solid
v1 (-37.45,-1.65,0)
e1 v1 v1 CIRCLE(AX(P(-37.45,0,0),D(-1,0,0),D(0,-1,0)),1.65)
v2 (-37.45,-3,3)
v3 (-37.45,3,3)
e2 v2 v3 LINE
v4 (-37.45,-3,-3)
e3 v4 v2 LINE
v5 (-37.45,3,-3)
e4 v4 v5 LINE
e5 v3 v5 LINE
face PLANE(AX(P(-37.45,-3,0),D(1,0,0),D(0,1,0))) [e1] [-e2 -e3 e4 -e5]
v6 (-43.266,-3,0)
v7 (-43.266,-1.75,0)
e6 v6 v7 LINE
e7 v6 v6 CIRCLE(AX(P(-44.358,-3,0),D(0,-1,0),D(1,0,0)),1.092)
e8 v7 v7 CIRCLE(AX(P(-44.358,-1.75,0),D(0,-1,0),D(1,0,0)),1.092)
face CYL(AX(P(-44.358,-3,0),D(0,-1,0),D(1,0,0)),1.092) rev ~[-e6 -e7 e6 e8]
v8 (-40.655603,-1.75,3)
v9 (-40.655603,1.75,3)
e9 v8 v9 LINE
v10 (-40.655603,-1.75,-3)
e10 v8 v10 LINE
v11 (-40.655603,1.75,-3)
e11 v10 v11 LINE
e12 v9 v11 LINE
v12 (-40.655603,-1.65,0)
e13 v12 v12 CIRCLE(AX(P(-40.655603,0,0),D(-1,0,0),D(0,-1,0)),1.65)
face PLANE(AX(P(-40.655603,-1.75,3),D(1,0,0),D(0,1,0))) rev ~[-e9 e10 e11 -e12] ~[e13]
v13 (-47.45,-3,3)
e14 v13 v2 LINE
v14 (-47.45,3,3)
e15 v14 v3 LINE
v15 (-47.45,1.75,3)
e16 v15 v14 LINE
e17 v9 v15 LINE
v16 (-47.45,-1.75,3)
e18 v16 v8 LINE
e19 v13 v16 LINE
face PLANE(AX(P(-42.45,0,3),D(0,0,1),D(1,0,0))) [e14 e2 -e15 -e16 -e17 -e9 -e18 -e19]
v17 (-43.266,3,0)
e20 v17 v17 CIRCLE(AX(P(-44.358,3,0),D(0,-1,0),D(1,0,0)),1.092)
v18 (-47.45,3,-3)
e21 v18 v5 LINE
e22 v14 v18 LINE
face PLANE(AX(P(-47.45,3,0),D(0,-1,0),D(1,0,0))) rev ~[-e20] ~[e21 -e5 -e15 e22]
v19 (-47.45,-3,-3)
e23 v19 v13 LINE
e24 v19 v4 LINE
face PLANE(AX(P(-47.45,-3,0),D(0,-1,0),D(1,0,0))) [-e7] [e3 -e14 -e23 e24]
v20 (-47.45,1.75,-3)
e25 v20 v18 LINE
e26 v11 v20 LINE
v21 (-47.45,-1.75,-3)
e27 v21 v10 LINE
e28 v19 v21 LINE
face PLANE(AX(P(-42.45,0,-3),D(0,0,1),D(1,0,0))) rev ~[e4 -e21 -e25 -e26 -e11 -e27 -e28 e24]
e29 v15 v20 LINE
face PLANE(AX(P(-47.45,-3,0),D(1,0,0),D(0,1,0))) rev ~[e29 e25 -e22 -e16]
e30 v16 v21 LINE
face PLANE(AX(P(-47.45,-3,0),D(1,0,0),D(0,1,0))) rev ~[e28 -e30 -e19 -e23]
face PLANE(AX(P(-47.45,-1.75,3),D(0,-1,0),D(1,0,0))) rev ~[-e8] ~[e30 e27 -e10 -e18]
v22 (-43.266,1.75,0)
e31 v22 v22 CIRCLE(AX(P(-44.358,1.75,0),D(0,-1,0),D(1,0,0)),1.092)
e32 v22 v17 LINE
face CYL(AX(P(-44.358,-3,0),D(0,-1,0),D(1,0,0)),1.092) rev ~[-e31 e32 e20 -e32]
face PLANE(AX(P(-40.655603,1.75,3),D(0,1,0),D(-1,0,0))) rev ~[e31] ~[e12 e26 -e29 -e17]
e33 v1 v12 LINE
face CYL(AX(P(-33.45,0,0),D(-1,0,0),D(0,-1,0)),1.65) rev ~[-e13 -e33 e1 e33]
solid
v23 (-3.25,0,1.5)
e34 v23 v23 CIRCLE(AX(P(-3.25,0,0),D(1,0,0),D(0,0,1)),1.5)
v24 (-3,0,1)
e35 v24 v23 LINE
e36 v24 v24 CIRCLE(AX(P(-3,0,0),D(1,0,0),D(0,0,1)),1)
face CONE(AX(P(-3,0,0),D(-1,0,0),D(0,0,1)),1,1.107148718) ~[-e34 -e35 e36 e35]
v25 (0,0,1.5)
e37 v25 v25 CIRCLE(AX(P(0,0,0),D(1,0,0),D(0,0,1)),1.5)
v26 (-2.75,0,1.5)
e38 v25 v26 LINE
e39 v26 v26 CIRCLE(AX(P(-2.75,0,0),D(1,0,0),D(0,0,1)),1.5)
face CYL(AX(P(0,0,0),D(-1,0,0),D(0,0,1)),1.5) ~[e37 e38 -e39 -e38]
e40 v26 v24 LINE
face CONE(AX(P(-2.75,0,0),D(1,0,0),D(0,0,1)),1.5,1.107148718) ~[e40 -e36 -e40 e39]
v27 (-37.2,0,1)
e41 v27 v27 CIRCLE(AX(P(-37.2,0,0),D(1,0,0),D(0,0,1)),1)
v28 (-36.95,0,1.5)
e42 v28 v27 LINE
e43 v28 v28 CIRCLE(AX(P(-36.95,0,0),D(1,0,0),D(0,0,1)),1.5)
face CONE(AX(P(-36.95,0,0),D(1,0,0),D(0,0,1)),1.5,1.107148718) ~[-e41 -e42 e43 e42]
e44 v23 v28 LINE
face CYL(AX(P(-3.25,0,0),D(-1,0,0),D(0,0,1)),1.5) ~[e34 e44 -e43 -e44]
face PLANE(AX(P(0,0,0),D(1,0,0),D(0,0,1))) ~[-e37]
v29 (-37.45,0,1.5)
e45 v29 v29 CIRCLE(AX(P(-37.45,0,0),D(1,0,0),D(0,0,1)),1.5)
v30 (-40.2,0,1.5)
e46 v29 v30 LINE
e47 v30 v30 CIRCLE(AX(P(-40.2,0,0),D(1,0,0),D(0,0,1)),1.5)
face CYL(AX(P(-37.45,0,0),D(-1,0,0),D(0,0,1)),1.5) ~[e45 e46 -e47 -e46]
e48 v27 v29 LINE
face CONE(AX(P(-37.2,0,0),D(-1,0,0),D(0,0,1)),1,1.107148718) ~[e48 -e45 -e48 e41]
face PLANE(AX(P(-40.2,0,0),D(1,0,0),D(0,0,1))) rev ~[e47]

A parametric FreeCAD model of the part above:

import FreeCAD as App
import Part
import Sketcher


def add_polygon(sketch, points):
    """Adds a closed chain of lines whose ends are joined by coincident constraints."""
    first, n = sketch.GeometryCount, len(points)
    for a, b in zip(points, points[1:] + points[:1]):
        sketch.addGeometry(Part.LineSegment(App.Vector(*a, 0), App.Vector(*b, 0)), False)
    for i in range(n):
        sketch.addConstraint(Sketcher.Constraint("Coincident", first + i, 2, first + (i + 1) % n, 1))

doc = App.newDocument("Part")
params = doc.addObject("Spreadsheet::Sheet", "Params")
for row, (alias, value) in enumerate([
    ("sketch1_width", "40.2 mm"),
    ("sketch1_width2", "33.7 mm"),
    ("sketch1_height", "1.5 mm"),
    ("revolution_angle", "360 deg"),
    ("sketch2_width", "10 mm"),
    ("sketch2_height", "6 mm"),
    ("pad1_length", "6 mm"),
    ("sketch3_diameter", "3.3 mm"),
    ("hole_diameter", "3.3 mm"),
    ("hole_depth", "4 mm"),
    ("sketch5_height", "3.5 mm"),
], start=1):
    params.set(f"A{row}", alias)
    params.set(f"B{row}", "=" + value)
    params.setAlias(f"B{row}", alias)

body = doc.addObject("PartDesign::Body", "Body")

# Sketch on XZ plane
sketch1 = body.newObject("Sketcher::SketchObject", "Sketch")
sketch1.AttachmentSupport = (doc.getObject("XZ_Plane"), [""])
sketch1.MapMode = "FlatFace"
add_polygon(sketch1, [(-37.5, 1.5), (-40.2, 1.5), (-40.2, 0), (0, 0), (0, 1.5), (-2.8, 1.5), (-3, 1), (-3.2, 1.5), (-37, 1.5), (-37.2, 1)])  # lines 0-9
sketch1.addConstraint(Sketcher.Constraint("Horizontal", 0))
sketch1.addConstraint(Sketcher.Constraint("Vertical", 1))
sketch1.addConstraint(Sketcher.Constraint("Horizontal", 2))
sketch1.addConstraint(Sketcher.Constraint("Vertical", 3))
sketch1.addConstraint(Sketcher.Constraint("Horizontal", 4))
sketch1.addConstraint(Sketcher.Constraint("Horizontal", 7))
sketch1.addConstraint(Sketcher.Constraint("Coincident", 2, 2, -1, 1))
sketch1.addConstraint(Sketcher.Constraint("Parallel", 5, 8))
sketch1.addConstraint(Sketcher.Constraint("Parallel", 6, 9))
sketch1.addConstraint(Sketcher.Constraint("Horizontal", 0, 2, 3, 2))
sketch1.addConstraint(Sketcher.Constraint("Horizontal", 4, 2, 6, 2))
sketch1.addConstraint(Sketcher.Constraint("Horizontal", 5, 2, 8, 2))
sketch1.addConstraint(Sketcher.Constraint("Equal", 0, 4))
sketch1.addConstraint(Sketcher.Constraint("Equal", 5, 6))
sketch1.addConstraint(Sketcher.Constraint("DistanceX", 2, 1, 2, 2, 40.2))
sketch1.addConstraint(Sketcher.Constraint("DistanceX", 7, 2, 7, 1, 33.7))
sketch1.addConstraint(Sketcher.Constraint("DistanceY", 1, 2, 1, 1, 1.5))
sketch1.addConstraint(Sketcher.Constraint("DistanceX", 5, 2, -1, 1, 3.0))
sketch1.addConstraint(Sketcher.Constraint("DistanceY", -1, 1, 5, 2, 1.0))
sketch1.setExpression("Constraints[24]", "Params.sketch1_width")
sketch1.setExpression("Constraints[25]", "Params.sketch1_width2")
sketch1.setExpression("Constraints[26]", "Params.sketch1_height")
revolution = body.newObject("PartDesign::Revolution", "Revolution")
revolution.Profile = sketch1
revolution.ReferenceAxis = (sketch1, ["H_Axis"])
revolution.setExpression("Angle", "Params.revolution_angle")
body2 = doc.addObject("PartDesign::Body", "Body001")

# Sketch on XY plane
sketch2 = body2.newObject("Sketcher::SketchObject", "Sketch001")
sketch2.AttachmentSupport = (doc.getObject("XY_Plane001"), [""])
sketch2.MapMode = "FlatFace"
add_polygon(sketch2, [(-47, 3), (-47, -3), (-37, -3), (-37, 3)])  # lines 0-3
sketch2.addConstraint(Sketcher.Constraint("Vertical", 0))
sketch2.addConstraint(Sketcher.Constraint("Horizontal", 1))
sketch2.addConstraint(Sketcher.Constraint("Vertical", 2))
sketch2.addConstraint(Sketcher.Constraint("Horizontal", 3))
sketch2.addConstraint(Sketcher.Constraint("DistanceX", 1, 1, 1, 2, 10.0))
sketch2.addConstraint(Sketcher.Constraint("DistanceY", 0, 2, 0, 1, 6.0))
sketch2.addConstraint(Sketcher.Constraint("DistanceY", 0, 2, -1, 1, 3.0))
sketch2.addConstraint(Sketcher.Constraint("DistanceX", 0, 2, -1, 1, 47.45))
sketch2.setExpression("Constraints[8]", "Params.sketch2_width")
sketch2.setExpression("Constraints[9]", "Params.sketch2_height")
pad1 = body2.newObject("PartDesign::Pad", "Pad")
pad1.Profile = sketch2
pad1.setExpression("Length", "Params.pad1_length")
pad1.Midplane = True

# Sketch on YZ plane
sketch3 = body2.newObject("Sketcher::SketchObject", "Sketch002")
sketch3.AttachmentSupport = (doc.getObject("YZ_Plane001"), [""])
sketch3.MapMode = "FlatFace"
sketch3.AttachmentOffset = App.Placement(App.Vector(0, 0, -37.45), App.Rotation())
sketch3.addGeometry(Part.Circle(App.Vector(0, 0, 0), App.Vector(0, 0, 1), 1.6), False)
sketch3.addConstraint(Sketcher.Constraint("Coincident", 0, 3, -1, 1))
sketch3.addConstraint(Sketcher.Constraint("Diameter", 0, 3.3))
sketch3.setExpression("Constraints[1]", "Params.sketch3_diameter")
doc.recompute()
hole = body2.newObject("PartDesign::Hole", "Hole")
hole.Profile = sketch3
hole.ThreadType = "None"
hole.setExpression("Diameter", "Params.hole_diameter")
hole.DepthType = "Dimension"
hole.setExpression("Depth", "Params.hole_depth")
hole.DrillPoint = "Angled"
hole.DrillPointAngle = 118

# Sketch on XZ plane
sketch4 = body2.newObject("Sketcher::SketchObject", "Sketch003")
sketch4.AttachmentSupport = (doc.getObject("XZ_Plane001"), [""])
sketch4.MapMode = "FlatFace"
sketch4.AttachmentOffset = App.Placement(App.Vector(0, 0, 3), App.Rotation())
sketch4.addGeometry(Part.Circle(App.Vector(-44.4, 0, 0), App.Vector(0, 0, 1), 1.1), False)
sketch4.addConstraint(Sketcher.Constraint("PointOnObject", 0, 3, -1))
sketch4.addConstraint(Sketcher.Constraint("Diameter", 0, 2.184))
sketch4.addConstraint(Sketcher.Constraint("DistanceX", 0, 3, -1, 1, 44.358))
pocket1 = body2.newObject("PartDesign::Pocket", "Pocket")
pocket1.Profile = sketch4
pocket1.Type = "ThroughAll"

# Sketch on XY plane
sketch5 = body2.newObject("Sketcher::SketchObject", "Sketch004")
sketch5.AttachmentSupport = (doc.getObject("XY_Plane001"), [""])
sketch5.MapMode = "FlatFace"
sketch5.AttachmentOffset = App.Placement(App.Vector(0, 0, 3), App.Rotation())
add_polygon(sketch5, [(-40.7, 1.8), (-47.5, 1.8), (-47.5, -1.8), (-40.7, -1.8)])  # lines 0-3
sketch5.addConstraint(Sketcher.Constraint("Horizontal", 0))
sketch5.addConstraint(Sketcher.Constraint("Vertical", 1))
sketch5.addConstraint(Sketcher.Constraint("Horizontal", 2))
sketch5.addConstraint(Sketcher.Constraint("Vertical", 3))
sketch5.addConstraint(Sketcher.Constraint("DistanceY", 1, 2, 1, 1, 3.5))
sketch5.addConstraint(Sketcher.Constraint("DistanceX", 0, 2, -1, 1, 47.45))
sketch5.addConstraint(Sketcher.Constraint("DistanceY", -1, 1, 0, 2, 1.75))
sketch5.addConstraint(Sketcher.Constraint("DistanceX", 0, 2, 0, 1, 6.794397))
sketch5.setExpression("Constraints[8]", "Params.sketch5_height")
pocket2 = body2.newObject("PartDesign::Pocket", "Pocket001")
pocket2.Profile = sketch5
pocket2.Type = "ThroughAll"

doc.recompute()
